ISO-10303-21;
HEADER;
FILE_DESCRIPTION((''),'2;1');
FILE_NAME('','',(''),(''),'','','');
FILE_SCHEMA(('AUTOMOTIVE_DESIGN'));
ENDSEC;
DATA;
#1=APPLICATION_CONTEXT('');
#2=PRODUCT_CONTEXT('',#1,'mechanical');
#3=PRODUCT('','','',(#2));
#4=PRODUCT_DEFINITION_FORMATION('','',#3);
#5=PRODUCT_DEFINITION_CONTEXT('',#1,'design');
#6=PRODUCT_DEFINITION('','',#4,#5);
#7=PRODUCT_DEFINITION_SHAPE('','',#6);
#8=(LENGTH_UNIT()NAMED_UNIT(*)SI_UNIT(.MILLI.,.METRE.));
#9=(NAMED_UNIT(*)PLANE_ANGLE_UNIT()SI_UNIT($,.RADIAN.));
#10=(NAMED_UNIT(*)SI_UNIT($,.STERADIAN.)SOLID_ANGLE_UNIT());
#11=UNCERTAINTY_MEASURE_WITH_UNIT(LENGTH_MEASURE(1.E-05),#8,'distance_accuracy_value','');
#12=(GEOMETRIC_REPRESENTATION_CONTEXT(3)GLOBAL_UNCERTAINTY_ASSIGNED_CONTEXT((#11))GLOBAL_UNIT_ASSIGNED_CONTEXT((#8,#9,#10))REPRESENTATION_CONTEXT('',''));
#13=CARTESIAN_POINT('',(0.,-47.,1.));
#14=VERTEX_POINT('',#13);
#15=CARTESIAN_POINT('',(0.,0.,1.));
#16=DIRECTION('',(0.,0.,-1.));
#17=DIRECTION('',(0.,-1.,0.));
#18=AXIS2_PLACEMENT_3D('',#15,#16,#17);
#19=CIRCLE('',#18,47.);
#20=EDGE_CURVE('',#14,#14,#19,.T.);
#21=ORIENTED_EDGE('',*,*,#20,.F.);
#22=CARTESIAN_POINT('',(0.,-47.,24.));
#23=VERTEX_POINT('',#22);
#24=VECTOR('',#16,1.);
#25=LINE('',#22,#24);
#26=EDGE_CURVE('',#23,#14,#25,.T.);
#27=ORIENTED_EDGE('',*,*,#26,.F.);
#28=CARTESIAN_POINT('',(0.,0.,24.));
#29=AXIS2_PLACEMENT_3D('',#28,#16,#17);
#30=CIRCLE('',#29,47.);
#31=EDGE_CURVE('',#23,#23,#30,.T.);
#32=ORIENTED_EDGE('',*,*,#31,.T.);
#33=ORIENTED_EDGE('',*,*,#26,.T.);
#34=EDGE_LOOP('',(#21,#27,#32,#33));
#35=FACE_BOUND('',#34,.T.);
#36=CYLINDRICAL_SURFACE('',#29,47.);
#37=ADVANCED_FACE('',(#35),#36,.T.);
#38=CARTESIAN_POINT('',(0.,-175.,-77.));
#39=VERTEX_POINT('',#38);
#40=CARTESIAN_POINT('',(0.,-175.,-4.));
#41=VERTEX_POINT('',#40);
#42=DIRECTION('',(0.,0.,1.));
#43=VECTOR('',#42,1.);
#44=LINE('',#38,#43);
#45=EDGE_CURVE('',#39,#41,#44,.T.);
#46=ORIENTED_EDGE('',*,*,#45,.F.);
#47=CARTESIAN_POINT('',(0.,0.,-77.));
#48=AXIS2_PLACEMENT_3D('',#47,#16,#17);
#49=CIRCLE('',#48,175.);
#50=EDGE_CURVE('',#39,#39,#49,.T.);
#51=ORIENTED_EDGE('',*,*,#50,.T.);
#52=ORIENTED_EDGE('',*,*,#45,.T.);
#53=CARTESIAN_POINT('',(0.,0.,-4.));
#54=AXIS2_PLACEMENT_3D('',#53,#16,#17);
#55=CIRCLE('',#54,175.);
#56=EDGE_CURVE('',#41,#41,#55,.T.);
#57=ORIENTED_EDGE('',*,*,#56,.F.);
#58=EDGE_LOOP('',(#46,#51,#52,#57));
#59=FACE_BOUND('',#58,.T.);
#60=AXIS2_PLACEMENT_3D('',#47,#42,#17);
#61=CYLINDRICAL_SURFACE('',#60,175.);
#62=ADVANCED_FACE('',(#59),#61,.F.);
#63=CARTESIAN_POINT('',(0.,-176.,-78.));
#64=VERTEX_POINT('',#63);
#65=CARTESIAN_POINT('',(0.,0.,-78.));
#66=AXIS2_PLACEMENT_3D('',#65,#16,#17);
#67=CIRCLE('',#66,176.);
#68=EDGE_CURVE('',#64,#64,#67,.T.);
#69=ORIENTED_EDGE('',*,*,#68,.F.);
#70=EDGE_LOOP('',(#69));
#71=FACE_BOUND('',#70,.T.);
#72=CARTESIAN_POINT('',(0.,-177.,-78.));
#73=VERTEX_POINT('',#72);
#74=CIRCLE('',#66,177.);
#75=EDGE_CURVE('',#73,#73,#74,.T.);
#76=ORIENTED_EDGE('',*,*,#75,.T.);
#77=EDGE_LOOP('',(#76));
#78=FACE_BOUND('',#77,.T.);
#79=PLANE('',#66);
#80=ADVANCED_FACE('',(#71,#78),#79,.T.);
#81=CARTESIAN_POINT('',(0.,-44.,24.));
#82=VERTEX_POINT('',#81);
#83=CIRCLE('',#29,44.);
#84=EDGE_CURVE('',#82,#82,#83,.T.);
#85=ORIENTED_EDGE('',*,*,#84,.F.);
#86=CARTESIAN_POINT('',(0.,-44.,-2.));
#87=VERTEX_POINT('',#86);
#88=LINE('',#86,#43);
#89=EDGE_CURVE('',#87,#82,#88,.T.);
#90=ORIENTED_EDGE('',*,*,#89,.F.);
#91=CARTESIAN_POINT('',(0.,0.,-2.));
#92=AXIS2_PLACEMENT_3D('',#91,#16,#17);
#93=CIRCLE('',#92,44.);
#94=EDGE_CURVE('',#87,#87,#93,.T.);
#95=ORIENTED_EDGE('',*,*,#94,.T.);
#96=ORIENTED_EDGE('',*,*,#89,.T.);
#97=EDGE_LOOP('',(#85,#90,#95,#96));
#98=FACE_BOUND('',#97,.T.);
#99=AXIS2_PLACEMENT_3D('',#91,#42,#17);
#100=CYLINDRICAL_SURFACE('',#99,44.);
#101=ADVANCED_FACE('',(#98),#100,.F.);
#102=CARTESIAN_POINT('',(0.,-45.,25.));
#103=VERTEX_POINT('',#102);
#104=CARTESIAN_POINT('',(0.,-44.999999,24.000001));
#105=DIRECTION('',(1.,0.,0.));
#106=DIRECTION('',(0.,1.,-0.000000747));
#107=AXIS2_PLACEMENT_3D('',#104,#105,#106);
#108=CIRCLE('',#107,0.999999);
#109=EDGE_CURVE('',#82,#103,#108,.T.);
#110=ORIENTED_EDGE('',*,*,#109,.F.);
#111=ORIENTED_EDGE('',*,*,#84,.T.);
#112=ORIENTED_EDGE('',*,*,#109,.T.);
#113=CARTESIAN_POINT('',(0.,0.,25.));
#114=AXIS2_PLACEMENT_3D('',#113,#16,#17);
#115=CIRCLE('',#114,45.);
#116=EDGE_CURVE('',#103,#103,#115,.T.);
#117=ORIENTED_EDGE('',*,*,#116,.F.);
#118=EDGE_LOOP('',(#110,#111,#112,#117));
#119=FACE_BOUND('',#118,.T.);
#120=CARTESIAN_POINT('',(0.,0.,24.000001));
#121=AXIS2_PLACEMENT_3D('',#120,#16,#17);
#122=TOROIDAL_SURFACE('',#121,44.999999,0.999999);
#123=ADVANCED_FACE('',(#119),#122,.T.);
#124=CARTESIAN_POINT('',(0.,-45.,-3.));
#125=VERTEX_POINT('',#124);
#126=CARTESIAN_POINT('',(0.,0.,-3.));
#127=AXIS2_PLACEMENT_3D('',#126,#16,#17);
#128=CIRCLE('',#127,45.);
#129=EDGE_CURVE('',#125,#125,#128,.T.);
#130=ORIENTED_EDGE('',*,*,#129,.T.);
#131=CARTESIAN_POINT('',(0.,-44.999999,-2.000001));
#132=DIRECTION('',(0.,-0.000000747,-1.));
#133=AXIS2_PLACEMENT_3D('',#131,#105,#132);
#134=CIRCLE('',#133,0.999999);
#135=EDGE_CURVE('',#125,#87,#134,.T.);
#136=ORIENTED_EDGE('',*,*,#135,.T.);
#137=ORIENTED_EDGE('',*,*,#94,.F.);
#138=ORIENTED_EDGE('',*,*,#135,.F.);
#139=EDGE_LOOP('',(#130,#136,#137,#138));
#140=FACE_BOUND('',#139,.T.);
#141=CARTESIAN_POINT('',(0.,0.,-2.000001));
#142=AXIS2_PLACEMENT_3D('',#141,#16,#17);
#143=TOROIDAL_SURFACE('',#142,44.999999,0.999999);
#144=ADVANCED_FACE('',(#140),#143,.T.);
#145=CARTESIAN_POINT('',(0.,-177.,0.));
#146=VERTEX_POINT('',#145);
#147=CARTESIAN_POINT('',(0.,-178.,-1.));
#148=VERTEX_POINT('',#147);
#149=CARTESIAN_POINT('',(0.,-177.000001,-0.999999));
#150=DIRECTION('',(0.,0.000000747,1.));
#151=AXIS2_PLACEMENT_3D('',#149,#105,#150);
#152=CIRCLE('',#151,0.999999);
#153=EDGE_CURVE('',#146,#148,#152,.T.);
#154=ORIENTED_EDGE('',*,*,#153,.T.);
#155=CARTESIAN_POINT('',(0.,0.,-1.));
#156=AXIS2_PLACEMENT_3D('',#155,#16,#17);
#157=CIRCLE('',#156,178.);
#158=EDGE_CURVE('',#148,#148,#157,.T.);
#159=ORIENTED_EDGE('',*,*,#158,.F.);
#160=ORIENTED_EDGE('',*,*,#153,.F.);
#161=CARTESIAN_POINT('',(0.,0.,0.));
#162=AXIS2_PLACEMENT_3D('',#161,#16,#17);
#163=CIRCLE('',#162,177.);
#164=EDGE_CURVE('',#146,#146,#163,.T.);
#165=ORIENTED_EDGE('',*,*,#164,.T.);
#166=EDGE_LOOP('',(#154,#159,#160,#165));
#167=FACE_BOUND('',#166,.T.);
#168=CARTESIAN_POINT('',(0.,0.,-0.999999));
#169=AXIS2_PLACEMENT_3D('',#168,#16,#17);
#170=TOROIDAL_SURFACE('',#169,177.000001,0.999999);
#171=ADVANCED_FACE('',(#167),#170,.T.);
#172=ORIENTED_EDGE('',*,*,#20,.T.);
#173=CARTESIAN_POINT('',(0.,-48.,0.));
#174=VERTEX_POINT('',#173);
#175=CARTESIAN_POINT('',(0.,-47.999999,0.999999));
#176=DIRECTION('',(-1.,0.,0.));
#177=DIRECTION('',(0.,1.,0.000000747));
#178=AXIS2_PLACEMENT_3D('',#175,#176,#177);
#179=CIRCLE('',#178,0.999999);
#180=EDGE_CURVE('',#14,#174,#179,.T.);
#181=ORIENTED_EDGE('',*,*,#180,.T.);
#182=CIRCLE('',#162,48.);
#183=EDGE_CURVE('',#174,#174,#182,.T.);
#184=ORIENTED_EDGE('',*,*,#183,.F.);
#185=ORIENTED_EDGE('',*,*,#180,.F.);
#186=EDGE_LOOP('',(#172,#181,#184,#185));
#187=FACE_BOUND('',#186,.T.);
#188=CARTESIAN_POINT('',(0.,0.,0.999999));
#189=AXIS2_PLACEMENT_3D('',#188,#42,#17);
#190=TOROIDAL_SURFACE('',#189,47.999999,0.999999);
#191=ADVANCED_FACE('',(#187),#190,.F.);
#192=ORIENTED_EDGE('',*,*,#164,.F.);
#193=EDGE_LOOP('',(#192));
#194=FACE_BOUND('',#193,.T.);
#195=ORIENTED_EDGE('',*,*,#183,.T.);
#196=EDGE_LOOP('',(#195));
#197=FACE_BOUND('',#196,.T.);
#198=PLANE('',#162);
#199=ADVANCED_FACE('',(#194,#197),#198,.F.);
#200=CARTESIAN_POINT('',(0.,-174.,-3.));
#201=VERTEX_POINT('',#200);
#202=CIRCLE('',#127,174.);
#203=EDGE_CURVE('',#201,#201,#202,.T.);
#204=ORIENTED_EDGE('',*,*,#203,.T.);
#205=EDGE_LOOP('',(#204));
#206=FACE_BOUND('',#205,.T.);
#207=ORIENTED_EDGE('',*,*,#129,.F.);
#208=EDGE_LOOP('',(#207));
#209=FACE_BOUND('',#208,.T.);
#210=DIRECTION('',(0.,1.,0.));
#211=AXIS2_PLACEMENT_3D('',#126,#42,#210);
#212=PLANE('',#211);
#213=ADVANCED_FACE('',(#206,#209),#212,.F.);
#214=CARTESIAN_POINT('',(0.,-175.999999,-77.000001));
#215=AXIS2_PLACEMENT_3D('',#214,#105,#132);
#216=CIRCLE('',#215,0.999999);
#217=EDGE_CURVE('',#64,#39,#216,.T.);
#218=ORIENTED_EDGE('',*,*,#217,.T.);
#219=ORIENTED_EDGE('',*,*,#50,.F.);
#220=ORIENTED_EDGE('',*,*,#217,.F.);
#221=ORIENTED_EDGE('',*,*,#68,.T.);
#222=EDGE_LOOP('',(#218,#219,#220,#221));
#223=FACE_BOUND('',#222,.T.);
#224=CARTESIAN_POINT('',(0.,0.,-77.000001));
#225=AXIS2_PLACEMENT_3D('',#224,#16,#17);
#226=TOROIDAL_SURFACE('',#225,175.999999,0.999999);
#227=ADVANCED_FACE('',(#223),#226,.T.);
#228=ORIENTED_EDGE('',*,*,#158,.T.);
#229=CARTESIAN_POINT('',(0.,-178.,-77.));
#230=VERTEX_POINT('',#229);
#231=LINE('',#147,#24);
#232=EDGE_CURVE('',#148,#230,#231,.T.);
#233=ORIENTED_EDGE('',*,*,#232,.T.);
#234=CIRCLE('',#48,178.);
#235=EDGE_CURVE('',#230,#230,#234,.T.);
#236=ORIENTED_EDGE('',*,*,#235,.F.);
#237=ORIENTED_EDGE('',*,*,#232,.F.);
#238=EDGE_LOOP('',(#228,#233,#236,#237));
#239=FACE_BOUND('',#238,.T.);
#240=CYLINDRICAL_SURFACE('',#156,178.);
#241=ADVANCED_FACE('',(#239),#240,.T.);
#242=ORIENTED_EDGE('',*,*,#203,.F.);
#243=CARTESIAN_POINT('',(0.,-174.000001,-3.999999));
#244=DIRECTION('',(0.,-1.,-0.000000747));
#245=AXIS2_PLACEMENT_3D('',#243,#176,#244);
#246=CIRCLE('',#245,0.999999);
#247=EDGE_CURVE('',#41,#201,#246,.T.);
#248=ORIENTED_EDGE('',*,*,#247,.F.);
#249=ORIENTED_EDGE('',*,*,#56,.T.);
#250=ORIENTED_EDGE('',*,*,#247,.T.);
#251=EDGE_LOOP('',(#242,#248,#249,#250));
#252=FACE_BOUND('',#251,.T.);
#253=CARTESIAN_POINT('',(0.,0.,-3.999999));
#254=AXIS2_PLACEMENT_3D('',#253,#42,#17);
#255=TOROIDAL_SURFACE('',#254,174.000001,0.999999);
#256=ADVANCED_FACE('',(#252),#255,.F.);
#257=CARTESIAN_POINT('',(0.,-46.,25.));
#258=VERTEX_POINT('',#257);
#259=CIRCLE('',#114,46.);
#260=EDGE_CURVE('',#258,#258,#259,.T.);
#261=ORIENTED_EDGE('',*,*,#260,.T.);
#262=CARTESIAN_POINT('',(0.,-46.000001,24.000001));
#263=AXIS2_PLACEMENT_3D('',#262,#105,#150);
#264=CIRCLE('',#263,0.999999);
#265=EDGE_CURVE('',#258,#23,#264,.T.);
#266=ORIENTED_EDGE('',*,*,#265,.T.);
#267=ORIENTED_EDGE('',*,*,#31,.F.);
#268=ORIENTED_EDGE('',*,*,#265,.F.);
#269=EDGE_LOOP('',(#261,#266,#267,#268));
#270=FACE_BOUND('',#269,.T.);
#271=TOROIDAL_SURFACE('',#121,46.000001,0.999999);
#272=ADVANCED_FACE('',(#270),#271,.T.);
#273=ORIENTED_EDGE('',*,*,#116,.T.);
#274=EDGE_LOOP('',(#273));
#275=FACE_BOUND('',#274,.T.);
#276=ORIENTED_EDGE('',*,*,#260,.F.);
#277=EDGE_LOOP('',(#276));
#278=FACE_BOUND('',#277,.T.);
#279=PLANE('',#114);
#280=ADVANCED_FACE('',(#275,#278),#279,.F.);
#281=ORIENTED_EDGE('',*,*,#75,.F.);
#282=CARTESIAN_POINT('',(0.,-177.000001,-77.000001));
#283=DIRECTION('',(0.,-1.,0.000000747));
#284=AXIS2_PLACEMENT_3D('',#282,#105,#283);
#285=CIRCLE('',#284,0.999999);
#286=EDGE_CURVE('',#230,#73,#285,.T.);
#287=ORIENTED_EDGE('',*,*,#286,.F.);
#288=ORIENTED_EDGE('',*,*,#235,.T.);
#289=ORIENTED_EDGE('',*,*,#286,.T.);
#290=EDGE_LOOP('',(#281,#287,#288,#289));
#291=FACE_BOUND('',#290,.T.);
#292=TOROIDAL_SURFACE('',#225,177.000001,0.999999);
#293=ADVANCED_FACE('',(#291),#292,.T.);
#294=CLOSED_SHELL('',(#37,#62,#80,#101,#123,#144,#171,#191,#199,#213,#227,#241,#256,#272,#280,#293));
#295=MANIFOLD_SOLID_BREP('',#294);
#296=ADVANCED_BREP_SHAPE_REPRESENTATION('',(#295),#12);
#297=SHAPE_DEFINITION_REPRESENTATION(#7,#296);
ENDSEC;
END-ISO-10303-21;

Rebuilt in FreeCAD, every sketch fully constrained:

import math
import FreeCAD as App
import Part
import Sketcher
Q = App.Units.Quantity

doc = App.newDocument("Part")
body = doc.addObject("PartDesign::Body", "Body")

sketch1 = doc.addObject("Sketcher::SketchObject", "Sketch")
body.addObject(sketch1)
sketch1.AttachmentSupport = (doc.YZ_Plane, [""])
sketch1.MapMode = "FlatFace"
sketch1.addGeometry([
    Part.LineSegment(App.Vector(-48, 0, 0), App.Vector(-177, 0, 0)),
    Part.ArcOfCircle(Part.Circle(App.Vector(-177, -1, 0), App.Vector(0, 0, 1), 1), math.radians(90), math.radians(180)),
    Part.LineSegment(App.Vector(-178, -1, 0), App.Vector(-178, -77, 0)),
    Part.ArcOfCircle(Part.Circle(App.Vector(-177, -77, 0), App.Vector(0, 0, 1), 1), math.radians(180), math.radians(270)),
    Part.LineSegment(App.Vector(-177, -78, 0), App.Vector(-176, -78, 0)),
    Part.ArcOfCircle(Part.Circle(App.Vector(-176, -77, 0), App.Vector(0, 0, 1), 1), math.radians(-90), math.radians(0)),
    Part.LineSegment(App.Vector(-175, -77, 0), App.Vector(-175, -4, 0)),
    Part.ArcOfCircle(Part.Circle(App.Vector(-174, -4, 0), App.Vector(0, 0, 1), 1), math.radians(90), math.radians(180)),
    Part.LineSegment(App.Vector(-174, -3, 0), App.Vector(-45, -3, 0)),
    Part.ArcOfCircle(Part.Circle(App.Vector(-45, -2, 0), App.Vector(0, 0, 1), 1), math.radians(-90), math.radians(0)),
    Part.LineSegment(App.Vector(-44, -2, 0), App.Vector(-44, 24, 0)),
    Part.ArcOfCircle(Part.Circle(App.Vector(-45, 24, 0), App.Vector(0, 0, 1), 1), math.radians(0), math.radians(90)),
    Part.LineSegment(App.Vector(-45, 25, 0), App.Vector(-46, 25, 0)),
    Part.ArcOfCircle(Part.Circle(App.Vector(-46, 24, 0), App.Vector(0, 0, 1), 1), math.radians(90), math.radians(180)),
    Part.LineSegment(App.Vector(-47, 24, 0), App.Vector(-47, 1, 0)),
    Part.ArcOfCircle(Part.Circle(App.Vector(-48, 1, 0), App.Vector(0, 0, 1), 1), math.radians(-90), math.radians(0)),
], False)
sketch1.addConstraint([
    Sketcher.Constraint("Tangent", 0, 2, 1, 1),
    Sketcher.Constraint("Tangent", 1, 2, 2, 1),
    Sketcher.Constraint("Tangent", 2, 2, 3, 1),
    Sketcher.Constraint("Tangent", 3, 2, 4, 1),
    Sketcher.Constraint("Tangent", 4, 2, 5, 1),
    Sketcher.Constraint("Tangent", 5, 2, 6, 1),
    Sketcher.Constraint("Tangent", 6, 2, 7, 2),
    Sketcher.Constraint("Tangent", 7, 1, 8, 1),
    Sketcher.Constraint("Tangent", 8, 2, 9, 1),
    Sketcher.Constraint("Tangent", 9, 2, 10, 1),
    Sketcher.Constraint("Tangent", 10, 2, 11, 1),
    Sketcher.Constraint("Tangent", 11, 2, 12, 1),
    Sketcher.Constraint("Tangent", 12, 2, 13, 1),
    Sketcher.Constraint("Tangent", 13, 2, 14, 1),
    Sketcher.Constraint("Tangent", 14, 2, 15, 2),
    Sketcher.Constraint("Tangent", 15, 1, 0, 1),
    Sketcher.Constraint("Horizontal", 0),
    Sketcher.Constraint("Vertical", 2),
    Sketcher.Constraint("Horizontal", 4),
    Sketcher.Constraint("Vertical", 6),
    Sketcher.Constraint("Horizontal", 8),
    Sketcher.Constraint("Vertical", 10),
    Sketcher.Constraint("Horizontal", 12),
    Sketcher.Constraint("Vertical", 14),
    Sketcher.Constraint("Equal", 1, 3),
    Sketcher.Constraint("Equal", 3, 5),
    Sketcher.Constraint("Equal", 5, 7),
    Sketcher.Constraint("Equal", 7, 9),
    Sketcher.Constraint("Equal", 9, 11),
    Sketcher.Constraint("Equal", 11, 13),
    Sketcher.Constraint("Equal", 13, 15),
    Sketcher.Constraint("PointOnObject", 0, 2, -1),
    Sketcher.Constraint("Equal", 0, 8),
    Sketcher.Constraint("Radius", 1, Q("0.999999 mm")),
    Sketcher.Constraint("DistanceX", 0, 2, 0, 1, Q("129 mm")),
    Sketcher.Constraint("DistanceX", 4, 1, 4, 2, Q("1 mm")),
    Sketcher.Constraint("DistanceY", 2, 2, 2, 1, Q("76 mm")),
    Sketcher.Constraint("DistanceY", 6, 1, 6, 2, Q("73 mm")),
    Sketcher.Constraint("DistanceY", 10, 1, 10, 2, Q("26 mm")),
    Sketcher.Constraint("DistanceX", 1, 3, -1, 1, Q("177.000001 mm")),
])
revolution = doc.addObject("PartDesign::Revolution", "Revolution")
body.addObject(revolution)
revolution.Profile = sketch1
revolution.ReferenceAxis = (sketch1, ["V_Axis"])
revolution.Angle = 360

doc.recompute()
